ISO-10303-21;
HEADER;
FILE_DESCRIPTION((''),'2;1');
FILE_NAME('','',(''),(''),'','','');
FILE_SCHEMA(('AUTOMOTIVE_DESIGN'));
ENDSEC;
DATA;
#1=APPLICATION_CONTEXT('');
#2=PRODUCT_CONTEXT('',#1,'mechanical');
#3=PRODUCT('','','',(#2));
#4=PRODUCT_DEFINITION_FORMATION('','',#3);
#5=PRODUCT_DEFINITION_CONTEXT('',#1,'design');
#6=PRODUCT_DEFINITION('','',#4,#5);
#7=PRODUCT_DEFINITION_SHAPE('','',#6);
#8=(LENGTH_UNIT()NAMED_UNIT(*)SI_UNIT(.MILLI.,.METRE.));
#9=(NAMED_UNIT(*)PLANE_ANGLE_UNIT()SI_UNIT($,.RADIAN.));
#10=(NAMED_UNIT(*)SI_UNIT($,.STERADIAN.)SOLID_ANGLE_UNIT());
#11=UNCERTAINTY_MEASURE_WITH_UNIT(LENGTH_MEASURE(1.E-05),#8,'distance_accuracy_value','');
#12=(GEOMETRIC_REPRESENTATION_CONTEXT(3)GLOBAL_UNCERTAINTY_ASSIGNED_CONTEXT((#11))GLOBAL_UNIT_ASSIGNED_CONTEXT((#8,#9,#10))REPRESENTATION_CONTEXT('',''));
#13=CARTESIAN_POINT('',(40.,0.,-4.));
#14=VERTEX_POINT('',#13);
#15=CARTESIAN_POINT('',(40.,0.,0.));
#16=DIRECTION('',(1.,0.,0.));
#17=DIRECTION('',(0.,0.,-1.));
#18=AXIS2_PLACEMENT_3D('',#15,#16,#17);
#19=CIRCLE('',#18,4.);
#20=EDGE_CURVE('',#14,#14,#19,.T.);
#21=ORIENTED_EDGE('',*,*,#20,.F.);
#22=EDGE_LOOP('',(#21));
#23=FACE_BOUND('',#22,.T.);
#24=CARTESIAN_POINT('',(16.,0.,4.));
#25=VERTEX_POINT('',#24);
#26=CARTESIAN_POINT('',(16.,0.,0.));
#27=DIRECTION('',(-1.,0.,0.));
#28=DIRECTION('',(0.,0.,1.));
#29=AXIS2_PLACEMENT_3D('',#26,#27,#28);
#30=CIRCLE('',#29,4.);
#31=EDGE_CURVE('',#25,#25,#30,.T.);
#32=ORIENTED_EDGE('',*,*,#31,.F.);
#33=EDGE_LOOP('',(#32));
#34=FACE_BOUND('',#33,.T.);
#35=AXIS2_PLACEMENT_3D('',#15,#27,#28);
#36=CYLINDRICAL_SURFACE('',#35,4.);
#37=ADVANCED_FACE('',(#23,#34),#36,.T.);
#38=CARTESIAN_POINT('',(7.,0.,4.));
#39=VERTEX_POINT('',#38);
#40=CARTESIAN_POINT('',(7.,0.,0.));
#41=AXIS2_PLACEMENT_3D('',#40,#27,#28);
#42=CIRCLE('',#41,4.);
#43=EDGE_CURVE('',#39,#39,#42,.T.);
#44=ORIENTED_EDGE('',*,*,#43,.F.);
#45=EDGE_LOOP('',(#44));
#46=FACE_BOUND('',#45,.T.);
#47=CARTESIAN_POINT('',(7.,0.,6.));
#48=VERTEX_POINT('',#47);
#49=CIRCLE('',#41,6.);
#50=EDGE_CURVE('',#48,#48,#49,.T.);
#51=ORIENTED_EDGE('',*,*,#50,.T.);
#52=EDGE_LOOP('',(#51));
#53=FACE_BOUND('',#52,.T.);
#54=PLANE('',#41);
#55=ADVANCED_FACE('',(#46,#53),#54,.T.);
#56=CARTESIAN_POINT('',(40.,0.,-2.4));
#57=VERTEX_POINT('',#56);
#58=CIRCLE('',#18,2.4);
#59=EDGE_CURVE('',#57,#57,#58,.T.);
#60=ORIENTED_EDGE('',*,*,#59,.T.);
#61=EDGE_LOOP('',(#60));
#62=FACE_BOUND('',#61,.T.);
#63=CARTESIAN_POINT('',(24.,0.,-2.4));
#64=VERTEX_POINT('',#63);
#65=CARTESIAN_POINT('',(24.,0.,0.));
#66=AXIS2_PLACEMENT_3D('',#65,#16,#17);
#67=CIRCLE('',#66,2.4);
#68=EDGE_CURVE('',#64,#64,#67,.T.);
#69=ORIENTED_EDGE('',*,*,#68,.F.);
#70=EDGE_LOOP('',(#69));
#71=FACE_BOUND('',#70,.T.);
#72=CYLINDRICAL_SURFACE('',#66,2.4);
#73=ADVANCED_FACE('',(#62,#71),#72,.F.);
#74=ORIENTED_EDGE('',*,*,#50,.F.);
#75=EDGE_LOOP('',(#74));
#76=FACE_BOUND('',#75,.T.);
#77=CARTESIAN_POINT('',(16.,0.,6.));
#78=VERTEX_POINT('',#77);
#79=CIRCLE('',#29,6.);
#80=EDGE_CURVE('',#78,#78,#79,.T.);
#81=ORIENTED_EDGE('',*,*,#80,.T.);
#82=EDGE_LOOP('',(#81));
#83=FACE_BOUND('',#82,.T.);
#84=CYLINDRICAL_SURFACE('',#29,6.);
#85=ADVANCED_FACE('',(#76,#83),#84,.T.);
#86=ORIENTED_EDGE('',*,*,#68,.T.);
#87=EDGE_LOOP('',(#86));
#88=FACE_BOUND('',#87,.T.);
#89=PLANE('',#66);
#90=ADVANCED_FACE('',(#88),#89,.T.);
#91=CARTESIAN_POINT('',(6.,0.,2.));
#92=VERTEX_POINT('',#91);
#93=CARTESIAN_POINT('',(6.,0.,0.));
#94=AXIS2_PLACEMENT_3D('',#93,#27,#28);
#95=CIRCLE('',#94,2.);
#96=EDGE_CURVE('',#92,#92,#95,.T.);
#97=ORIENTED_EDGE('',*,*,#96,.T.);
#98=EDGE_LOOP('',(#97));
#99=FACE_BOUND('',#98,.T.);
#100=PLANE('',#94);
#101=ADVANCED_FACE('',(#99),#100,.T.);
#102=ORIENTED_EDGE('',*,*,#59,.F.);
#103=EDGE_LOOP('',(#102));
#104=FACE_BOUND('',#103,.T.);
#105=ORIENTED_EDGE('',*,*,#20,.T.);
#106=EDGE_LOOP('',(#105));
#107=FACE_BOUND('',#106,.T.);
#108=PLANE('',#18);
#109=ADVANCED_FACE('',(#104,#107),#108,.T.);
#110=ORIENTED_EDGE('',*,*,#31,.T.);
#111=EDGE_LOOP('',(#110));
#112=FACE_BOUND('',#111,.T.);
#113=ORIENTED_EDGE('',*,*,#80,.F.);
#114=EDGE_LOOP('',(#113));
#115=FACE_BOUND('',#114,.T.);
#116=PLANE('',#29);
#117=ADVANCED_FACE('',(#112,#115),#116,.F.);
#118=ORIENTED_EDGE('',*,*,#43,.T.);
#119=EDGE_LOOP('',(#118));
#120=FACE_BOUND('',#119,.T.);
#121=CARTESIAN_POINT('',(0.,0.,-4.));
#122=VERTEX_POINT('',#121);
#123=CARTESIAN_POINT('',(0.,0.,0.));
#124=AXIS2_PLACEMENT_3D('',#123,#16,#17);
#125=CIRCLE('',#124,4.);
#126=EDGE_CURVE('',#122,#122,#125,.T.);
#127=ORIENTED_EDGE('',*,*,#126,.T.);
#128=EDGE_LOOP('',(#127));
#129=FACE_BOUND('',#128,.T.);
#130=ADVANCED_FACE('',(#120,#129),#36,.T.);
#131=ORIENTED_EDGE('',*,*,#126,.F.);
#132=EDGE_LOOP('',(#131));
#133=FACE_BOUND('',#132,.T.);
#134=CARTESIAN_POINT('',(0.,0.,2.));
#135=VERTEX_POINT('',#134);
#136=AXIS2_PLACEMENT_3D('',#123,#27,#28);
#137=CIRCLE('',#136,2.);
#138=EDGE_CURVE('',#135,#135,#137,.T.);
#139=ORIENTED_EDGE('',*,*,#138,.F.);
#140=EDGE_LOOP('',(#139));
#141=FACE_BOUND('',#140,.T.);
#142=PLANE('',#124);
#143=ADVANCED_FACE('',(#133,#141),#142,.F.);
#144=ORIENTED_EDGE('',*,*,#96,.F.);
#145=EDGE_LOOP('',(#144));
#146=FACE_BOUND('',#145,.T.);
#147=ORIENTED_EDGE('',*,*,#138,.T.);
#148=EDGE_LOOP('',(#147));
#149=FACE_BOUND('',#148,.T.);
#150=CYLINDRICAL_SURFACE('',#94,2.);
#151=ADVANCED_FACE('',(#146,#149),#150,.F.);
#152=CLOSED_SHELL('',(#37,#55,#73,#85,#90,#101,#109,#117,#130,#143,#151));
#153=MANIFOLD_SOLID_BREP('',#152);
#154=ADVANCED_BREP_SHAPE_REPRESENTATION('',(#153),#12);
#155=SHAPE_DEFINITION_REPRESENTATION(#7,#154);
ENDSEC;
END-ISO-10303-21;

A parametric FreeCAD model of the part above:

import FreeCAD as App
import Part
import Sketcher

V = App.Vector
Q = App.Units.Quantity

doc = App.newDocument("Part")
body = doc.addObject("PartDesign::Body", "Body")

sketch1 = doc.addObject("Sketcher::SketchObject", "Sketch")
body.addObject(sketch1)
sketch1.AttachmentSupport = (doc.YZ_Plane, [""])
sketch1.MapMode = "FlatFace"
sketch1.addGeometry(Part.Circle(V(0, 0, 0), V(0, 0, 1), 4), False)
sketch1.addConstraint(Sketcher.Constraint("Coincident", 0, 3, -1, 1))
sketch1.addConstraint(Sketcher.Constraint("Diameter", 0, Q("8 mm")))
pad1 = doc.addObject("PartDesign::Pad", "Pad")
body.addObject(pad1)
pad1.Profile = sketch1
pad1.Length = 40

sketch2 = doc.addObject("Sketcher::SketchObject", "Sketch001")
body.addObject(sketch2)
sketch2.AttachmentSupport = (doc.YZ_Plane, [""])
sketch2.MapMode = "FlatFace"
sketch2.addGeometry(Part.Circle(V(0, 0, 0), V(0, 0, 1), 2), False)
sketch2.addConstraint(Sketcher.Constraint("Coincident", 0, 3, -1, 1))
sketch2.addConstraint(Sketcher.Constraint("Diameter", 0, Q("4 mm")))
pocket1 = doc.addObject("PartDesign::Pocket", "Pocket")
body.addObject(pocket1)
pocket1.Profile = sketch2
pocket1.Length = 6
pocket1.Reversed = True

sketch3 = doc.addObject("Sketcher::SketchObject", "Sketch002")
body.addObject(sketch3)
sketch3.AttachmentSupport = (doc.YZ_Plane, [""])
sketch3.MapMode = "FlatFace"
sketch3.AttachmentOffset = App.Placement(V(0, 0, 7), App.Rotation())
sketch3.addGeometry(Part.Circle(V(0, 0, 0), V(0, 0, 1), 6), False)
sketch3.addGeometry(Part.Circle(V(0, 0, 0), V(0, 0, 1), 2), False)
sketch3.addConstraint(Sketcher.Constraint("Coincident", 0, 3, -1, 1))
sketch3.addConstraint(Sketcher.Constraint("Coincident", 1, 3, -1, 1))
sketch3.addConstraint(Sketcher.Constraint("Diameter", 0, Q("12 mm")))
sketch3.addConstraint(Sketcher.Constraint("Diameter", 1, Q("4 mm")))
pad2 = doc.addObject("PartDesign::Pad", "Pad001")
body.addObject(pad2)
pad2.Profile = sketch3
pad2.Length = 9

sketch4 = doc.addObject("Sketcher::SketchObject", "Sketch003")
body.addObject(sketch4)
sketch4.AttachmentSupport = (doc.YZ_Plane, [""])
sketch4.MapMode = "FlatFace"
sketch4.AttachmentOffset = App.Placement(V(0, 0, 40), App.Rotation())
sketch4.addGeometry(Part.Circle(V(0, 0, 0), V(0, 0, 1), 2.4), False)
sketch4.addConstraint(Sketcher.Constraint("Coincident", 0, 3, -1, 1))
sketch4.addConstraint(Sketcher.Constraint("Diameter", 0, Q("4.8 mm")))
pocket2 = doc.addObject("PartDesign::Pocket", "Pocket001")
body.addObject(pocket2)
pocket2.Profile = sketch4
pocket2.Length = 16

doc.recompute()
